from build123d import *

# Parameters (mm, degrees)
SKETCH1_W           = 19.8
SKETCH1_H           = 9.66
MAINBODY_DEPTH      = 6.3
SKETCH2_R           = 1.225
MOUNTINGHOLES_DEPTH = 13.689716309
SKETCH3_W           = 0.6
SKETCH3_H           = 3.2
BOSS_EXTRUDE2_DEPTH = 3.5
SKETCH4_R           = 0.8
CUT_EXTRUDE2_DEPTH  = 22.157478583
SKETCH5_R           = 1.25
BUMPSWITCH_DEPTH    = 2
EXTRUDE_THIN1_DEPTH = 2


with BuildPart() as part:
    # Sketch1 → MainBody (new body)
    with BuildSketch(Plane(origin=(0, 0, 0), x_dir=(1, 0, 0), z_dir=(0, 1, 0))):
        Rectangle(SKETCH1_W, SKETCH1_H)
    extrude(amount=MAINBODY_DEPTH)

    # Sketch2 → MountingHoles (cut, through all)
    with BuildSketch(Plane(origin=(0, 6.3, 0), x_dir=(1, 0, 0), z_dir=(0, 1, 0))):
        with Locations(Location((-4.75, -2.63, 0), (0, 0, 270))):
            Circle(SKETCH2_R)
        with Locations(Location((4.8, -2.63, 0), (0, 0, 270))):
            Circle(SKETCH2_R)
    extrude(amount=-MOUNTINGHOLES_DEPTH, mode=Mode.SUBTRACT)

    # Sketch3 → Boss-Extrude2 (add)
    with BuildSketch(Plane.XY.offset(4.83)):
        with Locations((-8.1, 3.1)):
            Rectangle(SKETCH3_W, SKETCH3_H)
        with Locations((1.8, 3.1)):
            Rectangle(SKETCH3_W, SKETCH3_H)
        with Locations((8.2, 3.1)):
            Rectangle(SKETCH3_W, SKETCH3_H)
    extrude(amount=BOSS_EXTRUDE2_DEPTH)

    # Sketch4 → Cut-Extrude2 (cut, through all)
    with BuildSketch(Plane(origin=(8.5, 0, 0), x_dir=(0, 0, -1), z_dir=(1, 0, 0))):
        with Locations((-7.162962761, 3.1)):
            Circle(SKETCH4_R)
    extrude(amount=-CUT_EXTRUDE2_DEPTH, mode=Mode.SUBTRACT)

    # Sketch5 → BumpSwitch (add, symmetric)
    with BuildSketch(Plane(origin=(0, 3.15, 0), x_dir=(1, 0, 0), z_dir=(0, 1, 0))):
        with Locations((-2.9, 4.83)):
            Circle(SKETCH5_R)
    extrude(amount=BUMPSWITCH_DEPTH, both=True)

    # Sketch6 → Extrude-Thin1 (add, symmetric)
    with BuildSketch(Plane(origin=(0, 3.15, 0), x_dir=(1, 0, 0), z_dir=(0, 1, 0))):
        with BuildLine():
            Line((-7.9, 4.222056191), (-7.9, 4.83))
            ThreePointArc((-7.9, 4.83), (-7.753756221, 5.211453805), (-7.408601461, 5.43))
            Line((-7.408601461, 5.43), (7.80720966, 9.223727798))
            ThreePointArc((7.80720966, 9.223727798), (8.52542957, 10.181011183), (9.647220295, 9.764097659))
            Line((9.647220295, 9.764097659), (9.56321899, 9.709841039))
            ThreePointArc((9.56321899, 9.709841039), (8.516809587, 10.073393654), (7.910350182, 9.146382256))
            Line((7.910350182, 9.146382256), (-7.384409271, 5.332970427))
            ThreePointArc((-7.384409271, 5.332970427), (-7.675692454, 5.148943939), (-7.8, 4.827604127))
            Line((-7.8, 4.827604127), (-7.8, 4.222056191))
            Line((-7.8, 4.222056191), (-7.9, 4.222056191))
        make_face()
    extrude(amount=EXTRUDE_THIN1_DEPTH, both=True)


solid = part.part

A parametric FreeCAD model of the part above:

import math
import FreeCAD as App
import Part
import Sketcher
Q = App.Units.Quantity


def add_polygon(sketch, points):
    """Adds a closed chain of lines whose ends are joined by coincident constraints."""
    first, n = sketch.GeometryCount, len(points)
    for a, b in zip(points, points[1:] + points[:1]):
        sketch.addGeometry(Part.LineSegment(App.Vector(*a, 0), App.Vector(*b, 0)), False)
    for i in range(n):
        sketch.addConstraint(Sketcher.Constraint("Coincident", first + i, 2, first + (i + 1) % n, 1))

doc = App.newDocument("Part")
body = doc.addObject("PartDesign::Body", "Body")

sketch1 = body.newObject("Sketcher::SketchObject", "Sketch")
sketch1.AttachmentSupport = (doc.getObject("XZ_Plane"), [""])
sketch1.MapMode = "FlatFace"
add_polygon(sketch1, [(-10, -5), (-10, 5), (10, 5), (10, -5)])
sketch1.addConstraint([
    Sketcher.Constraint("Vertical", 0),
    Sketcher.Constraint("Horizontal", 1),
    Sketcher.Constraint("Vertical", 2),
    Sketcher.Constraint("Horizontal", 3),
    Sketcher.Constraint("Symmetric", 0, 2, 2, 2, -1, 1),
    Sketcher.Constraint("DistanceX", 1, 1, 1, 2, Q("19.8 mm")),
    Sketcher.Constraint("DistanceY", 0, 1, 0, 2, Q("9.66 mm")),
])
pad1 = body.newObject("PartDesign::Pad", "Pad")
pad1.Profile = sketch1
pad1.Length = 6.3
pad1.Reversed = True

sketch2 = body.newObject("Sketcher::SketchObject", "Sketch001")
sketch2.AttachmentSupport = (doc.getObject("XZ_Plane"), [""])
sketch2.MapMode = "FlatFace"
sketch2.AttachmentOffset = App.Placement(App.Vector(0, 0, -6.3), App.Rotation())
sketch2.addGeometry([
    Part.Circle(App.Vector(-4.8, 2.6, 0), App.Vector(0, 0, 1), 1.2),
    Part.Circle(App.Vector(4.8, 2.6, 0), App.Vector(0, 0, 1), 1.2),
], False)
sketch2.addConstraint([
    Sketcher.Constraint("Equal", 0, 1),
    Sketcher.Constraint("Horizontal", 0, 3, 1, 3),
    Sketcher.Constraint("Diameter", 0, Q("2.45 mm")),
    Sketcher.Constraint("DistanceX", -1, 1, 1, 3, Q("4.8 mm")),
    Sketcher.Constraint("DistanceX", 0, 3, -1, 1, Q("4.75 mm")),
    Sketcher.Constraint("DistanceY", -1, 1, 0, 3, Q("2.63 mm")),
])
pocket1 = body.newObject("PartDesign::Pocket", "Pocket")
pocket1.Profile = sketch2
pocket1.Type = "ThroughAll"
pocket1.Reversed = True

sketch3 = body.newObject("Sketcher::SketchObject", "Sketch002")
sketch3.AttachmentSupport = (doc.getObject("XY_Plane"), [""])
sketch3.MapMode = "FlatFace"
sketch3.AttachmentOffset = App.Placement(App.Vector(0, 0, 4.83), App.Rotation())
add_polygon(sketch3, [(-8.4, 4.7), (-8.4, 1.5), (-7.8, 1.5), (-7.8, 4.7)])
add_polygon(sketch3, [(1.5, 4.7), (1.5, 1.5), (2.1, 1.5), (2.1, 4.7)])
add_polygon(sketch3, [(7.9, 4.7), (7.9, 1.5), (8.5, 1.5), (8.5, 4.7)])
sketch3.addConstraint([
    Sketcher.Constraint("Vertical", 0),
    Sketcher.Constraint("Horizontal", 1),
    Sketcher.Constraint("Vertical", 2),
    Sketcher.Constraint("Horizontal", 3),
    Sketcher.Constraint("Vertical", 4),
    Sketcher.Constraint("Horizontal", 5),
    Sketcher.Constraint("Vertical", 6),
    Sketcher.Constraint("Horizontal", 7),
    Sketcher.Constraint("Vertical", 8),
    Sketcher.Constraint("Horizontal", 9),
    Sketcher.Constraint("Vertical", 10),
    Sketcher.Constraint("Horizontal", 11),
    Sketcher.Constraint("Horizontal", 1, 2, 4, 2),
    Sketcher.Constraint("Horizontal", 3, 2, 6, 2),
    Sketcher.Constraint("Horizontal", 5, 2, 8, 2),
    Sketcher.Constraint("Horizontal", 7, 2, 10, 2),
    Sketcher.Constraint("Equal", 3, 5),
    Sketcher.Constraint("Equal", 7, 9),
    Sketcher.Constraint("DistanceX", 1, 1, 1, 2, Q("0.6 mm")),
    Sketcher.Constraint("DistanceY", 0, 2, 0, 1, Q("3.2 mm")),
    Sketcher.Constraint("DistanceX", 4, 2, 9, 2, Q("7 mm")),
    Sketcher.Constraint("DistanceX", 0, 2, -1, 1, Q("8.4 mm")),
    Sketcher.Constraint("DistanceY", -1, 1, 0, 2, Q("1.5 mm")),
    Sketcher.Constraint("DistanceX", -1, 1, 4, 2, Q("1.5 mm")),
])
pad2 = body.newObject("PartDesign::Pad", "Pad001")
pad2.Profile = sketch3
pad2.Length = 3.5

sketch4 = body.newObject("Sketcher::SketchObject", "Sketch003")
sketch4.AttachmentSupport = (doc.getObject("YZ_Plane"), [""])
sketch4.MapMode = "FlatFace"
sketch4.AttachmentOffset = App.Placement(App.Vector(0, 0, 8.5), App.Rotation())
sketch4.addGeometry(Part.Circle(App.Vector(3.1, 7.2, 0), App.Vector(0, 0, 1), 0.8), False)
sketch4.addConstraint([
    Sketcher.Constraint("Diameter", 0, Q("1.6 mm")),
    Sketcher.Constraint("DistanceX", -1, 1, 0, 3, Q("3.1 mm")),
    Sketcher.Constraint("DistanceY", -1, 1, 0, 3, Q("7.162963 mm")),
])
pocket2 = body.newObject("PartDesign::Pocket", "Pocket001")
pocket2.Profile = sketch4
pocket2.Type = "ThroughAll"

sketch5 = body.newObject("Sketcher::SketchObject", "Sketch004")
sketch5.AttachmentSupport = (doc.getObject("XZ_Plane"), [""])
sketch5.MapMode = "FlatFace"
sketch5.AttachmentOffset = App.Placement(App.Vector(0, 0, -3.15), App.Rotation())
sketch5.addGeometry(Part.Circle(App.Vector(-2.9, -4.8, 0), App.Vector(0, 0, 1), 1.2), False)
sketch5.addConstraint([
    Sketcher.Constraint("Diameter", 0, Q("2.5 mm")),
    Sketcher.Constraint("DistanceX", 0, 3, -1, 1, Q("2.9 mm")),
    Sketcher.Constraint("DistanceY", 0, 3, -1, 1, Q("4.83 mm")),
])
pad3 = body.newObject("PartDesign::Pad", "Pad002")
pad3.Profile = sketch5
pad3.Length = 4
pad3.Midplane = True

sketch6 = body.newObject("Sketcher::SketchObject", "Sketch005")
sketch6.AttachmentSupport = (doc.getObject("XZ_Plane"), [""])
sketch6.MapMode = "FlatFace"
sketch6.AttachmentOffset = App.Placement(App.Vector(0, 0, -3.15), App.Rotation())
sketch6.addGeometry([
    Part.LineSegment(App.Vector(-7.9, -4.83, 0), App.Vector(-7.9, -4.22, 0)),
    Part.LineSegment(App.Vector(-7.9, -4.22, 0), App.Vector(-7.8, -4.22, 0)),
    Part.LineSegment(App.Vector(-7.8, -4.22, 0), App.Vector(-7.8, -4.83, 0)),
    Part.ArcOfCircle(Part.Circle(App.Vector(-7.25, -4.8, 0), App.Vector(0, 0, 1), 0.55), math.radians(-177), math.radians(-104)),
    Part.LineSegment(App.Vector(-7.38, -5.33, 0), App.Vector(7.91, -9.15, 0)),
    Part.ArcOfCircle(Part.Circle(App.Vector(8.81, -9.22, 0), App.Vector(0, 0, 1), 0.9), math.radians(175), math.radians(327)),
    Part.LineSegment(App.Vector(9.56, -9.71, 0), App.Vector(9.65, -9.76, 0)),
    Part.ArcOfCircle(Part.Circle(App.Vector(8.81, -9.22, 0), App.Vector(0, 0, 1), 1), math.radians(-180), math.radians(-33)),
    Part.LineSegment(App.Vector(7.81, -9.22, 0), App.Vector(-7.41, -5.43, 0)),
    Part.ArcOfCircle(Part.Circle(App.Vector(-7.25, -4.8, 0), App.Vector(0, 0, 1), 0.65), math.radians(-177), math.radians(-104)),
], False)
sketch6.addConstraint([
    Sketcher.Constraint("Coincident", 0, 2, 1, 1),
    Sketcher.Constraint("Coincident", 1, 2, 2, 1),
    Sketcher.Constraint("Coincident", 2, 2, 3, 1),
    Sketcher.Constraint("Tangent", 3, 2, 4, 1),
    Sketcher.Constraint("Coincident", 4, 2, 5, 1),
    Sketcher.Constraint("Coincident", 5, 2, 6, 1),
    Sketcher.Constraint("Coincident", 6, 2, 7, 2),
    Sketcher.Constraint("Coincident", 7, 1, 8, 1),
    Sketcher.Constraint("Tangent", 8, 2, 9, 2),
    Sketcher.Constraint("Coincident", 9, 1, 0, 1),
    Sketcher.Constraint("Vertical", 0),
    Sketcher.Constraint("Horizontal", 1),
    Sketcher.Constraint("Vertical", 2),
    Sketcher.Constraint("Coincident", 7, 3, 5, 3),
    Sketcher.Constraint("Coincident", 9, 3, 3, 3),
    Sketcher.Constraint("Parallel", 4, 8),
    Sketcher.Constraint("Radius", 7, Q("1 mm")),
    Sketcher.Constraint("Radius", 5, Q("0.9 mm")),
    Sketcher.Constraint("Angle", 4, Q("-14 deg")),
    Sketcher.Constraint("DistanceX", 1, 1, 1, 2, Q("0.1 mm")),
    Sketcher.Constraint("DistanceX", 0, 2, -1, 1, Q("7.9 mm")),
    Sketcher.Constraint("DistanceY", 8, 2, -1, 1, Q("5.43 mm")),
    Sketcher.Constraint("DistanceY", 9, 1, -1, 1, Q("4.83 mm")),
    Sketcher.Constraint("Radius", 3, Q("0.549121 mm")),
    Sketcher.Constraint("Radius", 9, Q("0.649121 mm")),
    Sketcher.Constraint("DistanceX", 5, 2, 6, 2, Q("0.084001 mm")),
    Sketcher.Constraint("DistanceY", 0, 1, 0, 2, Q("0.607944 mm")),
    Sketcher.Constraint("DistanceY", 5, 3, -1, 1, Q("9.221531 mm")),
    Sketcher.Constraint("DistanceX", -1, 1, 4, 2, Q("7.91035 mm")),
    Sketcher.Constraint("DistanceX", -1, 1, 5, 2, Q("9.563219 mm")),
])
pad4 = body.newObject("PartDesign::Pad", "Pad003")
pad4.Profile = sketch6
pad4.Length = 4
pad4.Midplane = True

doc.recompute()
